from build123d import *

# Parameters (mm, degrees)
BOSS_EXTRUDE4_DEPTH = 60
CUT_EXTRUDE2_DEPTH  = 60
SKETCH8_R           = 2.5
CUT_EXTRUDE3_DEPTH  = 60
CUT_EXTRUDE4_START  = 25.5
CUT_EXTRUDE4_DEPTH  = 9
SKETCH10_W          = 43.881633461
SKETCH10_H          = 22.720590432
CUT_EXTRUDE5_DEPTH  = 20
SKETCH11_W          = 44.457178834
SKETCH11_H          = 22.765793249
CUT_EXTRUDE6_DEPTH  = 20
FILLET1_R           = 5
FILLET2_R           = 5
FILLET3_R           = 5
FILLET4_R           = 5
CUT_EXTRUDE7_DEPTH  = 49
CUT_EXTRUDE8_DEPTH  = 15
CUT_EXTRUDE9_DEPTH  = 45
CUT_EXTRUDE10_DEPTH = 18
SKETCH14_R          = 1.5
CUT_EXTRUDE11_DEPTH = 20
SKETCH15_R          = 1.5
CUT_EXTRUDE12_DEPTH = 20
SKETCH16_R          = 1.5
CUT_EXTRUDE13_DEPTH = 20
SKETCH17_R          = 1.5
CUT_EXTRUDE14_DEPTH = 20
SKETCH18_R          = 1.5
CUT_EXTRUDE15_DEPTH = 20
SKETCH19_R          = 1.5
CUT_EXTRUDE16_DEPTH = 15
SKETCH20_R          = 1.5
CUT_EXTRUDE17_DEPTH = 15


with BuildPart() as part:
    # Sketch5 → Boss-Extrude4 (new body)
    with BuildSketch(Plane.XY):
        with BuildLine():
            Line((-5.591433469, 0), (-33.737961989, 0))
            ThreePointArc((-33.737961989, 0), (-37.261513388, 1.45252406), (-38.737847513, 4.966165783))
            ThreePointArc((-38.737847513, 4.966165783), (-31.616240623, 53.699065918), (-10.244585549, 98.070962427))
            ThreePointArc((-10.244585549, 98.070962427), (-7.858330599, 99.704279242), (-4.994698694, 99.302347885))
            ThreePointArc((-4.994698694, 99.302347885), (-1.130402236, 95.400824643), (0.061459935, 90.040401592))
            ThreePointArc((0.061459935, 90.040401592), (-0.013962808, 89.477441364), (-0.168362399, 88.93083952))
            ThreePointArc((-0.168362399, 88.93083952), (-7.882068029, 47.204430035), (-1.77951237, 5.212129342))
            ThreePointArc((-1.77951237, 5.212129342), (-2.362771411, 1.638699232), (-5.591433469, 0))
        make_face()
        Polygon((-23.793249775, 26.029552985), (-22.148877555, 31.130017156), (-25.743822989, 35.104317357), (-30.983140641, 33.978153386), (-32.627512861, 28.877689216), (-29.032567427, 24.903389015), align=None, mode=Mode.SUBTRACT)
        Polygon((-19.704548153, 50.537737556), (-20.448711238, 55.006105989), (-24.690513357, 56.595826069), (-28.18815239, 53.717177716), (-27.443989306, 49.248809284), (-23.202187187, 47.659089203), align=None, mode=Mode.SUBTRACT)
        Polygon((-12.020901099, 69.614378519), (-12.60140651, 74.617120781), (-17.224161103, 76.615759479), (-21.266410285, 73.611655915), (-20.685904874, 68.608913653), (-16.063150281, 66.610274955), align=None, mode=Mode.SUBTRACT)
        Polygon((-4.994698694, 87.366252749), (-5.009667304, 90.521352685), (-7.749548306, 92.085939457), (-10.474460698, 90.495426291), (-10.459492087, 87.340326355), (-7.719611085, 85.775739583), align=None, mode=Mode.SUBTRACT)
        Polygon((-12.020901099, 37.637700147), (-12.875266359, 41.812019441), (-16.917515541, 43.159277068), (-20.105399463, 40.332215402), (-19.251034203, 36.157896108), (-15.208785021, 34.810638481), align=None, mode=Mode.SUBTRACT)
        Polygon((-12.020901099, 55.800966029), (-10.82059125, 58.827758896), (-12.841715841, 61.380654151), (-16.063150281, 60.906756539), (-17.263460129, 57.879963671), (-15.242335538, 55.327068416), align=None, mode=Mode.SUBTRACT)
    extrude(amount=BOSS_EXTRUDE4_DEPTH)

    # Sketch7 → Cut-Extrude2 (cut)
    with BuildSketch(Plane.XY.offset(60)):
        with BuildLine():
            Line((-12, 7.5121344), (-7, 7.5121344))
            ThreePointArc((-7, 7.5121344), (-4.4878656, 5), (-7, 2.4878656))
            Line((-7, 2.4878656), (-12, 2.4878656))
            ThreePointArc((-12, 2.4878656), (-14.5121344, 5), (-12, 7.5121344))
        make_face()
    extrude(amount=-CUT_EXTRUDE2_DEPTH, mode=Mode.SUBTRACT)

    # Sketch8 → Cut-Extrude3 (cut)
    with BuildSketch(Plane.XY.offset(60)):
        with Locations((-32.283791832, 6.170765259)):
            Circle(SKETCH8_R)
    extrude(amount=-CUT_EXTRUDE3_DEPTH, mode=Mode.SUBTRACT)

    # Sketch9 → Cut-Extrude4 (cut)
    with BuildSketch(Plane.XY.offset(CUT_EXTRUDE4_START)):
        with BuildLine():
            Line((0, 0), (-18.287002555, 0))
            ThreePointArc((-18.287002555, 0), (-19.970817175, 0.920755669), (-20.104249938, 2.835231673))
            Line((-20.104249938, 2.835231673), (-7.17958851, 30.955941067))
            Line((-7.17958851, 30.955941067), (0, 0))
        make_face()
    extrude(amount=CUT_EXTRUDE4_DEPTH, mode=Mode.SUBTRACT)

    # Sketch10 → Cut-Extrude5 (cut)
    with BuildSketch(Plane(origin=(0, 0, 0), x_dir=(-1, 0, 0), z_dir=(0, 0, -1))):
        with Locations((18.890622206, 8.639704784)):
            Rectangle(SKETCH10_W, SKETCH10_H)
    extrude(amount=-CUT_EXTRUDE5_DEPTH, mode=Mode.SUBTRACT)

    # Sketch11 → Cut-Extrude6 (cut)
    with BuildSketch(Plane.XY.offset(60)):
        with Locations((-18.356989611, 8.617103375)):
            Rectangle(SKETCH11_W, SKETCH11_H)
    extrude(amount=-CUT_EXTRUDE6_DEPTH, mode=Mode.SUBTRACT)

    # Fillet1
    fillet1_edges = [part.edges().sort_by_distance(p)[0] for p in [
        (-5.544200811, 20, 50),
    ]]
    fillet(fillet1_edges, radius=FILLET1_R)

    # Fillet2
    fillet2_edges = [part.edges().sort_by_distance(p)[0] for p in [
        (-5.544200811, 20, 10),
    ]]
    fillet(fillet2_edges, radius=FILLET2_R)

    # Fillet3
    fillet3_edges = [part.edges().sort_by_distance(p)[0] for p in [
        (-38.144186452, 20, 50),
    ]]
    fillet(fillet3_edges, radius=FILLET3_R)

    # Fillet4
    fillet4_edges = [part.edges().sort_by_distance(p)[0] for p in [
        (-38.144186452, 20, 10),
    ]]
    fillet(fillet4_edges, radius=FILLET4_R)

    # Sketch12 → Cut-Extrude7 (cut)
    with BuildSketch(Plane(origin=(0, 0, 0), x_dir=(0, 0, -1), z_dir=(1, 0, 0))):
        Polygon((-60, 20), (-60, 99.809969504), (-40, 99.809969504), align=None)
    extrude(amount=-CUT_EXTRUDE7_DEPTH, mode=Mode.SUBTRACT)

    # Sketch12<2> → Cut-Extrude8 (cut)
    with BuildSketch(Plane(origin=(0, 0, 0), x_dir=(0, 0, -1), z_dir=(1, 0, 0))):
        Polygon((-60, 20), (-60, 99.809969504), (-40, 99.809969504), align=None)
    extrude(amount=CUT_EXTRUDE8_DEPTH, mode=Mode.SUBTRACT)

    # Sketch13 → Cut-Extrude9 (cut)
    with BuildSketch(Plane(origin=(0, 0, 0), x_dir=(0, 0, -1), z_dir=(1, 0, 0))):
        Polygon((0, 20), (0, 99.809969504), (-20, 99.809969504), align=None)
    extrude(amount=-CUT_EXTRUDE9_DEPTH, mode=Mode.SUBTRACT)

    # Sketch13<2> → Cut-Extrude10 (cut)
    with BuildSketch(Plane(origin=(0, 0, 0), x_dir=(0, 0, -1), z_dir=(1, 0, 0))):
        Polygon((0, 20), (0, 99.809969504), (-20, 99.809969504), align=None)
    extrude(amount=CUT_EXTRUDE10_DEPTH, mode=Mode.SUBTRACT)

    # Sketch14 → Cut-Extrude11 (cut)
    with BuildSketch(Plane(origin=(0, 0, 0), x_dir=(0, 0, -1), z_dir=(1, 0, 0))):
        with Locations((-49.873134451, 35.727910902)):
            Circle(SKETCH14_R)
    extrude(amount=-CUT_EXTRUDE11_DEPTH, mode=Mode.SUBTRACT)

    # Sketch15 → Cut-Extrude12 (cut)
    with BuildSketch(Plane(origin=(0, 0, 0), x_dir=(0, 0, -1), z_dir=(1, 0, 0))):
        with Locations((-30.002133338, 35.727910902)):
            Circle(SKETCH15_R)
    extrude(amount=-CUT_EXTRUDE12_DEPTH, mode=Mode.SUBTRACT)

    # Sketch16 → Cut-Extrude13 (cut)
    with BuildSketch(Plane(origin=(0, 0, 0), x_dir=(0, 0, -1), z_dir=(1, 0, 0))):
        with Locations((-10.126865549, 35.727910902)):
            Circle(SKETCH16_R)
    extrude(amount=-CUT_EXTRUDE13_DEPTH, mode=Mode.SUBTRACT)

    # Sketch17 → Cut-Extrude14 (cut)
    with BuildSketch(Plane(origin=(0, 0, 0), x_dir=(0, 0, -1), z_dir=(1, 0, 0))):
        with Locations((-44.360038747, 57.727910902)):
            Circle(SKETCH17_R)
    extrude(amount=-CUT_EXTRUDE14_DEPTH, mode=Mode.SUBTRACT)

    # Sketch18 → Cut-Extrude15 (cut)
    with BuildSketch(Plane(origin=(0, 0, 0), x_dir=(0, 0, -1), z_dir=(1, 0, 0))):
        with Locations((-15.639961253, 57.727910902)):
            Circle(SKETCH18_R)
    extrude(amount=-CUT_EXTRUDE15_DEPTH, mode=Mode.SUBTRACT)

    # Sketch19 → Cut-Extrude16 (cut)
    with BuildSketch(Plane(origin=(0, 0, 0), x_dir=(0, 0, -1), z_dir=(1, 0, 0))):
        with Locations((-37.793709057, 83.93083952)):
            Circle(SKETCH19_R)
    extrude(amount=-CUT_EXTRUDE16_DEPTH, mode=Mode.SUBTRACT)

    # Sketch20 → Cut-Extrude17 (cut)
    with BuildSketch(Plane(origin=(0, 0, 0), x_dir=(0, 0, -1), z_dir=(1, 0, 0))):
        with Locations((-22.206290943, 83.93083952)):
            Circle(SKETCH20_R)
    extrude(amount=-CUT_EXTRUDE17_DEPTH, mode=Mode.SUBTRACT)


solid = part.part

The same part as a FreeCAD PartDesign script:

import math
import FreeCAD as App
import Part
import Sketcher

V = App.Vector


def edges_at(feature, points):
    """Names of the edges that pass closest to the given points."""
    edges = feature.Shape.Edges
    near = lambda p: min(range(len(edges)), key=lambda i: edges[i].distToShape(Part.Vertex(*p))[0])
    return sorted({f"Edge{near(p) + 1}" for p in points})

doc = App.newDocument("Part")
body = doc.addObject("PartDesign::Body", "Body")

# Sketch on XY plane
sketch1 = body.newObject("Sketcher::SketchObject", "Sketch")
sketch1.AttachmentSupport = (doc.getObject("XY_Plane"), [""])
sketch1.MapMode = "FlatFace"
sketch1.addGeometry([
    Part.LineSegment(V(-33.7, 0, 0), V(-5.6, 0, 0)),  # 0
    Part.ArcOfCircle(Part.Circle(V(-5.6, 4, 0), V(0, 0, 1), 4), math.radians(-90), math.radians(18)),  # 1
    Part.ArcOfCircle(Part.Circle(V(122.4, 44.7, 0), V(0, 0, 1), 130.3), math.radians(160), math.radians(198)),  # 2
    Part.ArcOfCircle(Part.Circle(V(-3.9, 90.3, 0), V(0, 0, 1), 4), math.radians(-19.84), math.radians(-3.56)),  # 3
    Part.ArcOfCircle(Part.Circle(V(-9.8, 90.7, 0), V(0, 0, 1), 9.9), math.radians(-4), math.radians(61)),  # 4
    Part.ArcOfCircle(Part.Circle(V(-6.9, 95.8, 0), V(0, 0, 1), 4), math.radians(61), math.radians(146)),  # 5
    Part.ArcOfCircle(Part.Circle(V(124, 6.1, 0), V(0, 0, 1), 162.8), math.radians(146), math.radians(180)),  # 6
    Part.ArcOfCircle(Part.Circle(V(-33.7, 5, 0), V(0, 0, 1), 5), math.radians(-180), math.radians(-90)),  # 7
    Part.LineSegment(V(-12, 37.6, 0), V(-15.2, 34.8, 0)),  # 8
    Part.LineSegment(V(-15.2, 34.8, 0), V(-19.3, 36.2, 0)),  # 9
    Part.LineSegment(V(-19.3, 36.2, 0), V(-20.1, 40.3, 0)),  # 10
    Part.LineSegment(V(-20.1, 40.3, 0), V(-16.9, 43.2, 0)),  # 11
    Part.LineSegment(V(-16.9, 43.2, 0), V(-12.9, 41.8, 0)),  # 12
    Part.LineSegment(V(-12.9, 41.8, 0), V(-12, 37.6, 0)),  # 13
    Part.LineSegment(V(-12, 55.8, 0), V(-15.2, 55.3, 0)),  # 14
    Part.LineSegment(V(-15.2, 55.3, 0), V(-17.3, 57.9, 0)),  # 15
    Part.LineSegment(V(-17.3, 57.9, 0), V(-16.1, 60.9, 0)),  # 16
    Part.LineSegment(V(-16.1, 60.9, 0), V(-12.8, 61.4, 0)),  # 17
    Part.LineSegment(V(-12.8, 61.4, 0), V(-10.8, 58.8, 0)),  # 18
    Part.LineSegment(V(-10.8, 58.8, 0), V(-12, 55.8, 0)),  # 19
    Part.LineSegment(V(-23.8, 26, 0), V(-29, 24.9, 0)),  # 20
    Part.LineSegment(V(-29, 24.9, 0), V(-32.6, 28.9, 0)),  # 21
    Part.LineSegment(V(-32.6, 28.9, 0), V(-31, 34, 0)),  # 22
    Part.LineSegment(V(-31, 34, 0), V(-25.7, 35.1, 0)),  # 23
    Part.LineSegment(V(-25.7, 35.1, 0), V(-22.1, 31.1, 0)),  # 24
    Part.LineSegment(V(-22.1, 31.1, 0), V(-23.8, 26, 0)),  # 25
    Part.LineSegment(V(-19.7, 50.5, 0), V(-23.2, 47.7, 0)),  # 26
    Part.LineSegment(V(-23.2, 47.7, 0), V(-27.4, 49.2, 0)),  # 27
    Part.LineSegment(V(-27.4, 49.2, 0), V(-28.2, 53.7, 0)),  # 28
    Part.LineSegment(V(-28.2, 53.7, 0), V(-24.7, 56.6, 0)),  # 29
    Part.LineSegment(V(-24.7, 56.6, 0), V(-20.4, 55, 0)),  # 30
    Part.LineSegment(V(-20.4, 55, 0), V(-19.7, 50.5, 0)),  # 31
    Part.LineSegment(V(-12, 69.6, 0), V(-16.1, 66.6, 0)),  # 32
    Part.LineSegment(V(-16.1, 66.6, 0), V(-20.7, 68.6, 0)),  # 33
    Part.LineSegment(V(-20.7, 68.6, 0), V(-21.3, 73.6, 0)),  # 34
    Part.LineSegment(V(-21.3, 73.6, 0), V(-17.2, 76.6, 0)),  # 35
    Part.LineSegment(V(-17.2, 76.6, 0), V(-12.6, 74.6, 0)),  # 36
    Part.LineSegment(V(-12.6, 74.6, 0), V(-12, 69.6, 0)),  # 37
    Part.LineSegment(V(-5, 87.4, 0), V(-7.7, 85.8, 0)),  # 38
    Part.LineSegment(V(-7.7, 85.8, 0), V(-10.5, 87.3, 0)),  # 39
    Part.LineSegment(V(-10.5, 87.3, 0), V(-10.5, 90.5, 0)),  # 40
    Part.LineSegment(V(-10.5, 90.5, 0), V(-7.7, 92.1, 0)),  # 41
    Part.LineSegment(V(-7.7, 92.1, 0), V(-5, 90.5, 0)),  # 42
    Part.LineSegment(V(-5, 90.5, 0), V(-5, 87.4, 0)),  # 43
], False)
sketch1.addConstraint([
    Sketcher.Constraint("Tangent", 0, 2, 1, 1),
    Sketcher.Constraint("Tangent", 1, 2, 2, 2),
    Sketcher.Constraint("Tangent", 2, 1, 3, 1),
    Sketcher.Constraint("Tangent", 3, 2, 4, 1),
    Sketcher.Constraint("Tangent", 4, 2, 5, 1),
    Sketcher.Constraint("Tangent", 5, 2, 6, 1),
    Sketcher.Constraint("Tangent", 6, 2, 7, 1),
    Sketcher.Constraint("Tangent", 7, 2, 0, 1),
    Sketcher.Constraint("Coincident", 8, 2, 9, 1),
    Sketcher.Constraint("Coincident", 9, 2, 10, 1),
    Sketcher.Constraint("Coincident", 10, 2, 11, 1),
    Sketcher.Constraint("Coincident", 11, 2, 12, 1),
    Sketcher.Constraint("Coincident", 12, 2, 13, 1),
    Sketcher.Constraint("Coincident", 13, 2, 8, 1),
    Sketcher.Constraint("Coincident", 14, 2, 15, 1),
    Sketcher.Constraint("Coincident", 15, 2, 16, 1),
    Sketcher.Constraint("Coincident", 16, 2, 17, 1),
    Sketcher.Constraint("Coincident", 17, 2, 18, 1),
    Sketcher.Constraint("Coincident", 18, 2, 19, 1),
    Sketcher.Constraint("Coincident", 19, 2, 14, 1),
    Sketcher.Constraint("Coincident", 20, 2, 21, 1),
    Sketcher.Constraint("Coincident", 21, 2, 22, 1),
    Sketcher.Constraint("Coincident", 22, 2, 23, 1),
    Sketcher.Constraint("Coincident", 23, 2, 24, 1),
    Sketcher.Constraint("Coincident", 24, 2, 25, 1),
    Sketcher.Constraint("Coincident", 25, 2, 20, 1),
    Sketcher.Constraint("Coincident", 26, 2, 27, 1),
    Sketcher.Constraint("Coincident", 27, 2, 28, 1),
    Sketcher.Constraint("Coincident", 28, 2, 29, 1),
    Sketcher.Constraint("Coincident", 29, 2, 30, 1),
    Sketcher.Constraint("Coincident", 30, 2, 31, 1),
    Sketcher.Constraint("Coincident", 31, 2, 26, 1),
    Sketcher.Constraint("Coincident", 32, 2, 33, 1),
    Sketcher.Constraint("Coincident", 33, 2, 34, 1),
    Sketcher.Constraint("Coincident", 34, 2, 35, 1),
    Sketcher.Constraint("Coincident", 35, 2, 36, 1),
    Sketcher.Constraint("Coincident", 36, 2, 37, 1),
    Sketcher.Constraint("Coincident", 37, 2, 32, 1),
    Sketcher.Constraint("Coincident", 38, 2, 39, 1),
    Sketcher.Constraint("Coincident", 39, 2, 40, 1),
    Sketcher.Constraint("Coincident", 40, 2, 41, 1),
    Sketcher.Constraint("Coincident", 41, 2, 42, 1),
    Sketcher.Constraint("Coincident", 42, 2, 43, 1),
    Sketcher.Constraint("Coincident", 43, 2, 38, 1),
    Sketcher.Constraint("Horizontal", 0),
    Sketcher.Constraint("Equal", 1, 3),
    Sketcher.Constraint("Equal", 3, 5),
    Sketcher.Constraint("PointOnObject", 0, 2, -1),
    Sketcher.Constraint("Parallel", 8, 11),
    Sketcher.Constraint("Parallel", 9, 12),
    Sketcher.Constraint("Parallel", 10, 13),
    Sketcher.Constraint("Parallel", 14, 17),
    Sketcher.Constraint("Parallel", 15, 18),
    Sketcher.Constraint("Parallel", 16, 19),
    Sketcher.Constraint("Parallel", 20, 23),
    Sketcher.Constraint("Parallel", 21, 24),
    Sketcher.Constraint("Parallel", 22, 25),
    Sketcher.Constraint("Parallel", 26, 29),
    Sketcher.Constraint("Parallel", 27, 30),
    Sketcher.Constraint("Parallel", 28, 31),
    Sketcher.Constraint("Parallel", 32, 35),
    Sketcher.Constraint("Parallel", 33, 36),
    Sketcher.Constraint("Parallel", 34, 37),
    Sketcher.Constraint("Parallel", 38, 41),
    Sketcher.Constraint("Parallel", 39, 42),
    Sketcher.Constraint("Parallel", 40, 43),
    Sketcher.Constraint("Vertical", 13, 2, 19, 2),
    Sketcher.Constraint("Vertical", 16, 2, 32, 2),
    Sketcher.Constraint("Vertical", 19, 2, 37, 2),
    Sketcher.Constraint("Vertical", 4, 2, 43, 2),
    Sketcher.Constraint("Equal", 8, 9),
    Sketcher.Constraint("Equal", 9, 10),
    Sketcher.Constraint("Equal", 10, 11),
    Sketcher.Constraint("Equal", 14, 15),
    Sketcher.Constraint("Equal", 15, 16),
    Sketcher.Constraint("Equal", 16, 17),
    Sketcher.Constraint("Equal", 20, 21),
    Sketcher.Constraint("Equal", 21, 22),
    Sketcher.Constraint("Equal", 22, 23),
    Sketcher.Constraint("Equal", 26, 27),
    Sketcher.Constraint("Equal", 27, 28),
    Sketcher.Constraint("Equal", 28, 29),
    Sketcher.Constraint("Equal", 32, 33),
    Sketcher.Constraint("Equal", 33, 34),
    Sketcher.Constraint("Equal", 34, 35),
    Sketcher.Constraint("Equal", 38, 39),
    Sketcher.Constraint("Equal", 39, 40),
    Sketcher.Constraint("Equal", 40, 41),
    Sketcher.Constraint("Radius", 1, 4.0),
    Sketcher.Constraint("Radius", 7, 5.0),
    Sketcher.Constraint("Radius", 2, 130.300167),
    Sketcher.Constraint("Radius", 4, 9.903936),
    Sketcher.Constraint("Radius", 6, 162.766334),
    Sketcher.Constraint("DistanceY", 17, 2, 34, 2, 12.231002),
    Sketcher.Constraint("DistanceX", 0, 1, 0, 2, 28.146529),
    Sketcher.Constraint("DistanceY", -1, 1, 3, 2, 90.040402),
    Sketcher.Constraint("DistanceX", 4, 2, -1, 1, 4.994699),
    Sketcher.Constraint("DistanceX", 10, 2, -1, 1, 20.105399),
    Sketcher.Constraint("DistanceX", 13, 2, -1, 1, 12.020901),
    Sketcher.Constraint("DistanceY", -1, 1, 13, 2, 37.6377),
    Sketcher.Constraint("DistanceX", 3, 3, 2, 3, 126.324801),
    Sketcher.Constraint("DistanceX", 9, 2, 1, 3, 13.659601),
    Sketcher.Constraint("DistanceX", 9, 2, 14, 2, 4.008699),
    Sketcher.Constraint("DistanceX", 11, 2, 17, 2, 4.0758),
    Sketcher.Constraint("DistanceY", 20, 2, 21, 2, 3.9743),
    Sketcher.Constraint("DistanceY", 23, 2, 10, 2, 5.227898),
    Sketcher.Constraint("DistanceY", 25, 2, 22, 2, 7.9486),
    Sketcher.Constraint("DistanceY", 16, 2, 34, 2, 12.704899),
    Sketcher.Constraint("DistanceX", 33, 2, 36, 2, 8.084498),
    Sketcher.Constraint("DistanceY", 38, 2, 2, 1, 3.1551),
    Sketcher.Constraint("DistanceY", 39, 2, 40, 2, 3.1551),
    Sketcher.Constraint("Distance", 26, 4.529911),
    Sketcher.Constraint("Distance", 32, 5.03631),
    Sketcher.Constraint("DistanceX", 4, 3, -1, 1, 9.823371),
    Sketcher.Constraint("DistanceY", -1, 1, 5, 3, 95.80997),
    Sketcher.Constraint("DistanceY", -1, 1, 8, 2, 34.810638),
    Sketcher.Constraint("DistanceY", -1, 1, 12, 2, 41.812019),
    Sketcher.Constraint("DistanceY", -1, 1, 14, 2, 55.327068),
    Sketcher.Constraint("DistanceX", 15, 2, -1, 1, 17.26346),
    Sketcher.Constraint("DistanceY", -1, 1, 20, 2, 24.903389),
    Sketcher.Constraint("DistanceX", 22, 2, -1, 1, 30.983141),
    Sketcher.Constraint("DistanceX", 25, 2, -1, 1, 23.79325),
    Sketcher.Constraint("DistanceY", -1, 1, 26, 2, 47.659089),
    Sketcher.Constraint("DistanceX", 27, 2, -1, 1, 27.443989),
    Sketcher.Constraint("DistanceY", -1, 1, 27, 2, 49.248809),
    Sketcher.Constraint("DistanceX", 30, 2, -1, 1, 20.448711),
    Sketcher.Constraint("DistanceX", 31, 2, -1, 1, 19.704548),
    Sketcher.Constraint("DistanceX", 34, 2, -1, 1, 21.26641),
    Sketcher.Constraint("DistanceX", 38, 2, -1, 1, 7.719611),
    Sketcher.Constraint("DistanceX", 40, 2, -1, 1, 10.474461),
    Sketcher.Constraint("DistanceY", -1, 1, 41, 2, 92.085939),
])
pad1 = body.newObject("PartDesign::Pad", "Pad")
pad1.Profile = sketch1
pad1.Length = 60

# Sketch on XY plane
sketch2 = body.newObject("Sketcher::SketchObject", "Sketch001")
sketch2.AttachmentSupport = (doc.getObject("XY_Plane"), [""])
sketch2.MapMode = "FlatFace"
sketch2.AttachmentOffset = App.Placement(V(0, 0, 60), App.Rotation())
sketch2.addGeometry([
    Part.LineSegment(V(-7, 7.5, 0), V(-12, 7.5, 0)),
    Part.ArcOfCircle(Part.Circle(V(-12, 5, 0), V(0, 0, 1), 2.5), math.radians(90), math.radians(270)),
    Part.LineSegment(V(-12, 2.5, 0), V(-7, 2.5, 0)),
    Part.ArcOfCircle(Part.Circle(V(-7, 5, 0), V(0, 0, 1), 2.5), math.radians(-90), math.radians(90)),
], False)
sketch2.addConstraint([
    Sketcher.Constraint("Tangent", 0, 2, 1, 1),
    Sketcher.Constraint("Tangent", 1, 2, 2, 1),
    Sketcher.Constraint("Tangent", 2, 2, 3, 1),
    Sketcher.Constraint("Tangent", 3, 2, 0, 1),
    Sketcher.Constraint("Horizontal", 0),
    Sketcher.Constraint("Horizontal", 2),
    Sketcher.Constraint("DistanceX", 0, 2, 0, 1, 5.0),
    Sketcher.Constraint("DistanceX", 1, 3, -1, 1, 12.0),
    Sketcher.Constraint("DistanceY", -1, 1, 1, 3, 5.0),
    Sketcher.Constraint("Radius", 1, 2.512134),
])
pocket1 = body.newObject("PartDesign::Pocket", "Pocket")
pocket1.Profile = sketch2
pocket1.Length = 60

# Sketch on XY plane
sketch3 = body.newObject("Sketcher::SketchObject", "Sketch002")
sketch3.AttachmentSupport = (doc.getObject("XY_Plane"), [""])
sketch3.MapMode = "FlatFace"
sketch3.AttachmentOffset = App.Placement(V(0, 0, 60), App.Rotation())
sketch3.addGeometry(Part.Circle(V(-32.3, 6.2, 0), V(0, 0, 1), 2.5), False)
sketch3.addConstraint([
    Sketcher.Constraint("Diameter", 0, 5.0),
    Sketcher.Constraint("DistanceX", 0, 3, -1, 1, 32.283792),
    Sketcher.Constraint("DistanceY", -1, 1, 0, 3, 6.170765),
])
pocket2 = body.newObject("PartDesign::Pocket", "Pocket001")
pocket2.Profile = sketch3
pocket2.Length = 60

# Sketch on XY plane
sketch4 = body.newObject("Sketcher::SketchObject", "Sketch003")
sketch4.AttachmentSupport = (doc.getObject("XY_Plane"), [""])
sketch4.MapMode = "FlatFace"
sketch4.AttachmentOffset = App.Placement(V(0, 0, 25.5), App.Rotation())
sketch4.addGeometry([
    Part.LineSegment(V(-18.3, 0, 0), V(0, 0, 0)),
    Part.LineSegment(V(0, 0, 0), V(-7.2, 31, 0)),
    Part.LineSegment(V(-7.2, 31, 0), V(-20.1, 2.8, 0)),
    Part.ArcOfCircle(Part.Circle(V(-18.3, 2, 0), V(0, 0, 1), 2), math.radians(155), math.radians(270)),
], False)
sketch4.addConstraint([
    Sketcher.Constraint("Coincident", 0, 2, 1, 1),
    Sketcher.Constraint("Coincident", 1, 2, 2, 1),
    Sketcher.Constraint("Tangent", 2, 2, 3, 1),
    Sketcher.Constraint("Tangent", 3, 2, 0, 1),
    Sketcher.Constraint("Horizontal", 0),
    Sketcher.Constraint("Coincident", 0, 2, -1, 1),
    Sketcher.Constraint("Radius", 3, 2.0),
    Sketcher.Constraint("DistanceX", 0, 1, 0, 2, 18.287003),
    Sketcher.Constraint("DistanceX", 1, 2, -1, 1, 7.179589),
    Sketcher.Constraint("DistanceY", -1, 1, 1, 2, 30.955941),
])
pocket3 = body.newObject("PartDesign::Pocket", "Pocket002")
pocket3.Profile = sketch4
pocket3.Length = 9
pocket3.Reversed = True

# Sketch on XY plane
sketch5 = body.newObject("Sketcher::SketchObject", "Sketch004")
sketch5.AttachmentSupport = (doc.getObject("XY_Plane"), [""])
sketch5.MapMode = "FlatFace"
sketch5.addGeometry([
    Part.LineSegment(V(3, 20, 0), V(3, -3, 0)),
    Part.LineSegment(V(3, -3, 0), V(-41, -3, 0)),
    Part.LineSegment(V(-41, -3, 0), V(-41, 20, 0)),
    Part.LineSegment(V(-41, 20, 0), V(3, 20, 0)),
], False)
sketch5.addConstraint([
    Sketcher.Constraint("Coincident", 0, 2, 1, 1),
    Sketcher.Constraint("Coincident", 1, 2, 2, 1),
    Sketcher.Constraint("Coincident", 2, 2, 3, 1),
    Sketcher.Constraint("Coincident", 3, 2, 0, 1),
    Sketcher.Constraint("Vertical", 0),
    Sketcher.Constraint("Horizontal", 1),
    Sketcher.Constraint("Vertical", 2),
    Sketcher.Constraint("Horizontal", 3),
    Sketcher.Constraint("DistanceY", -1, 1, 2, 2, 20.0),
    Sketcher.Constraint("DistanceY", 0, 2, 0, 1, 22.72059),
    Sketcher.Constraint("DistanceX", 1, 2, 1, 1, 43.881633),
    Sketcher.Constraint("DistanceX", 1, 2, -1, 1, 40.831439),
])
pocket4 = body.newObject("PartDesign::Pocket", "Pocket003")
pocket4.Profile = sketch5
pocket4.Length = 20
pocket4.Reversed = True

# Sketch on XY plane
sketch6 = body.newObject("Sketcher::SketchObject", "Sketch005")
sketch6.AttachmentSupport = (doc.getObject("XY_Plane"), [""])
sketch6.MapMode = "FlatFace"
sketch6.AttachmentOffset = App.Placement(V(0, 0, 60), App.Rotation())
sketch6.addGeometry([
    Part.LineSegment(V(-41, 20, 0), V(-41, -3, 0)),
    Part.LineSegment(V(-41, -3, 0), V(4, -3, 0)),
    Part.LineSegment(V(4, -3, 0), V(4, 20, 0)),
    Part.LineSegment(V(4, 20, 0), V(-41, 20, 0)),
], False)
sketch6.addConstraint([
    Sketcher.Constraint("Coincident", 0, 2, 1, 1),
    Sketcher.Constraint("Coincident", 1, 2, 2, 1),
    Sketcher.Constraint("Coincident", 2, 2, 3, 1),
    Sketcher.Constraint("Coincident", 3, 2, 0, 1),
    Sketcher.Constraint("Vertical", 0),
    Sketcher.Constraint("Horizontal", 1),
    Sketcher.Constraint("Vertical", 2),
    Sketcher.Constraint("Horizontal", 3),
    Sketcher.Constraint("DistanceY", -1, 1, 2, 2, 20.0),
    Sketcher.Constraint("DistanceX", 1, 1, 1, 2, 44.457179),
    Sketcher.Constraint("DistanceX", -1, 1, 1, 2, 3.8716),
    Sketcher.Constraint("DistanceY", 0, 2, 0, 1, 22.765793),
])
pocket5 = body.newObject("PartDesign::Pocket", "Pocket004")
pocket5.Profile = sketch6
pocket5.Length = 20
doc.recompute()

fillet = body.newObject("PartDesign::Fillet", "Fillet")
fillet.Base = (pocket5, edges_at(pocket5, [(-5.544, 20, 50)]))
fillet.Radius = 5
doc.recompute()

fillet2 = body.newObject("PartDesign::Fillet", "Fillet001")
fillet2.Base = (fillet, edges_at(fillet, [(-5.544, 20, 10)]))
fillet2.Radius = 5
doc.recompute()

fillet3 = body.newObject("PartDesign::Fillet", "Fillet002")
fillet3.Base = (fillet2, edges_at(fillet2, [(-38.144, 20, 50)]))
fillet3.Radius = 5
doc.recompute()

fillet4 = body.newObject("PartDesign::Fillet", "Fillet003")
fillet4.Base = (fillet3, edges_at(fillet3, [(-38.144, 20, 10)]))
fillet4.Radius = 5

# Sketch on YZ plane
sketch7 = body.newObject("Sketcher::SketchObject", "Sketch006")
sketch7.AttachmentSupport = (doc.getObject("YZ_Plane"), [""])
sketch7.MapMode = "FlatFace"
sketch7.addGeometry([
    Part.LineSegment(V(100, 60, 0), V(20, 60, 0)),
    Part.LineSegment(V(20, 60, 0), V(100, 40, 0)),
    Part.LineSegment(V(100, 40, 0), V(100, 60, 0)),
], False)
sketch7.addConstraint([
    Sketcher.Constraint("Coincident", 0, 2, 1, 1),
    Sketcher.Constraint("Coincident", 1, 2, 2, 1),
    Sketcher.Constraint("Coincident", 2, 2, 0, 1),
    Sketcher.Constraint("Horizontal", 0),
    Sketcher.Constraint("Vertical", 2),
    Sketcher.Constraint("DistanceY", 2, 1, 2, 2, 20.0),
    Sketcher.Constraint("DistanceX", -1, 1, 0, 2, 20.0),
    Sketcher.Constraint("DistanceY", -1, 1, 0, 2, 60.0),
    Sketcher.Constraint("DistanceX", 0, 2, 0, 1, 79.80997),
])
pocket6 = body.newObject("PartDesign::Pocket", "Pocket005")
pocket6.Profile = sketch7
pocket6.Length = 49

# Sketch on YZ plane
sketch8 = body.newObject("Sketcher::SketchObject", "Sketch007")
sketch8.AttachmentSupport = (doc.getObject("YZ_Plane"), [""])
sketch8.MapMode = "FlatFace"
sketch8.addGeometry([
    Part.LineSegment(V(100, 60, 0), V(20, 60, 0)),
    Part.LineSegment(V(20, 60, 0), V(100, 40, 0)),
    Part.LineSegment(V(100, 40, 0), V(100, 60, 0)),
], False)
sketch8.addConstraint([
    Sketcher.Constraint("Coincident", 0, 2, 1, 1),
    Sketcher.Constraint("Coincident", 1, 2, 2, 1),
    Sketcher.Constraint("Coincident", 2, 2, 0, 1),
    Sketcher.Constraint("Horizontal", 0),
    Sketcher.Constraint("Vertical", 2),
    Sketcher.Constraint("DistanceY", 2, 1, 2, 2, 20.0),
    Sketcher.Constraint("DistanceX", -1, 1, 0, 2, 20.0),
    Sketcher.Constraint("DistanceY", -1, 1, 0, 2, 60.0),
    Sketcher.Constraint("DistanceX", 0, 2, 0, 1, 79.80997),
])
pocket7 = body.newObject("PartDesign::Pocket", "Pocket006")
pocket7.Profile = sketch8
pocket7.Length = 15
pocket7.Reversed = True

# Sketch on YZ plane
sketch9 = body.newObject("Sketcher::SketchObject", "Sketch008")
sketch9.AttachmentSupport = (doc.getObject("YZ_Plane"), [""])
sketch9.MapMode = "FlatFace"
sketch9.addGeometry([
    Part.LineSegment(V(20, 0, 0), V(100, 0, 0)),
    Part.LineSegment(V(100, 0, 0), V(100, 20, 0)),
    Part.LineSegment(V(100, 20, 0), V(20, 0, 0)),
], False)
sketch9.addConstraint([
    Sketcher.Constraint("Coincident", 0, 2, 1, 1),
    Sketcher.Constraint("Coincident", 1, 2, 2, 1),
    Sketcher.Constraint("Coincident", 2, 2, 0, 1),
    Sketcher.Constraint("Horizontal", 0),
    Sketcher.Constraint("Vertical", 1),
    Sketcher.Constraint("PointOnObject", 0, 2, -1),
    Sketcher.Constraint("DistanceY", 1, 1, 1, 2, 20.0),
    Sketcher.Constraint("DistanceX", -1, 1, 2, 2, 20.0),
    Sketcher.Constraint("DistanceX", 0, 1, 0, 2, 79.80997),
])
pocket8 = body.newObject("PartDesign::Pocket", "Pocket007")
pocket8.Profile = sketch9
pocket8.Length = 45

# Sketch on YZ plane
sketch10 = body.newObject("Sketcher::SketchObject", "Sketch009")
sketch10.AttachmentSupport = (doc.getObject("YZ_Plane"), [""])
sketch10.MapMode = "FlatFace"
sketch10.addGeometry([
    Part.LineSegment(V(20, 0, 0), V(100, 0, 0)),
    Part.LineSegment(V(100, 0, 0), V(100, 20, 0)),
    Part.LineSegment(V(100, 20, 0), V(20, 0, 0)),
], False)
sketch10.addConstraint([
    Sketcher.Constraint("Coincident", 0, 2, 1, 1),
    Sketcher.Constraint("Coincident", 1, 2, 2, 1),
    Sketcher.Constraint("Coincident", 2, 2, 0, 1),
    Sketcher.Constraint("Horizontal", 0),
    Sketcher.Constraint("Vertical", 1),
    Sketcher.Constraint("PointOnObject", 0, 2, -1),
    Sketcher.Constraint("DistanceY", 1, 1, 1, 2, 20.0),
    Sketcher.Constraint("DistanceX", -1, 1, 2, 2, 20.0),
    Sketcher.Constraint("DistanceX", 0, 1, 0, 2, 79.80997),
])
pocket9 = body.newObject("PartDesign::Pocket", "Pocket008")
pocket9.Profile = sketch10
pocket9.Length = 18
pocket9.Reversed = True

# Sketch on YZ plane
sketch11 = body.newObject("Sketcher::SketchObject", "Sketch010")
sketch11.AttachmentSupport = (doc.getObject("YZ_Plane"), [""])
sketch11.MapMode = "FlatFace"
sketch11.addGeometry(Part.Circle(V(35.7, 49.9, 0), V(0, 0, 1), 1.5), False)
sketch11.addConstraint([
    Sketcher.Constraint("Diameter", 0, 3.0),
    Sketcher.Constraint("DistanceX", -1, 1, 0, 3, 35.727911),
    Sketcher.Constraint("DistanceY", -1, 1, 0, 3, 49.873134),
])
pocket10 = body.newObject("PartDesign::Pocket", "Pocket009")
pocket10.Profile = sketch11
pocket10.Length = 20

# Sketch on YZ plane
sketch12 = body.newObject("Sketcher::SketchObject", "Sketch011")
sketch12.AttachmentSupport = (doc.getObject("YZ_Plane"), [""])
sketch12.MapMode = "FlatFace"
sketch12.addGeometry(Part.Circle(V(35.7, 30, 0), V(0, 0, 1), 1.5), False)
sketch12.addConstraint([
    Sketcher.Constraint("Diameter", 0, 3.0),
    Sketcher.Constraint("DistanceX", -1, 1, 0, 3, 35.727911),
    Sketcher.Constraint("DistanceY", -1, 1, 0, 3, 30.002133),
])
pocket11 = body.newObject("PartDesign::Pocket", "Pocket010")
pocket11.Profile = sketch12
pocket11.Length = 20

# Sketch on YZ plane
sketch13 = body.newObject("Sketcher::SketchObject", "Sketch012")
sketch13.AttachmentSupport = (doc.getObject("YZ_Plane"), [""])
sketch13.MapMode = "FlatFace"
sketch13.addGeometry(Part.Circle(V(35.7, 10.1, 0), V(0, 0, 1), 1.5), False)
sketch13.addConstraint([
    Sketcher.Constraint("Diameter", 0, 3.0),
    Sketcher.Constraint("DistanceX", -1, 1, 0, 3, 35.727911),
    Sketcher.Constraint("DistanceY", -1, 1, 0, 3, 10.126866),
])
pocket12 = body.newObject("PartDesign::Pocket", "Pocket011")
pocket12.Profile = sketch13
pocket12.Length = 20

# Sketch on YZ plane
sketch14 = body.newObject("Sketcher::SketchObject", "Sketch013")
sketch14.AttachmentSupport = (doc.getObject("YZ_Plane"), [""])
sketch14.MapMode = "FlatFace"
sketch14.addGeometry(Part.Circle(V(57.7, 44.4, 0), V(0, 0, 1), 1.5), False)
sketch14.addConstraint([
    Sketcher.Constraint("Diameter", 0, 3.0),
    Sketcher.Constraint("DistanceX", -1, 1, 0, 3, 57.727911),
    Sketcher.Constraint("DistanceY", -1, 1, 0, 3, 44.360039),
])
pocket13 = body.newObject("PartDesign::Pocket", "Pocket012")
pocket13.Profile = sketch14
pocket13.Length = 20

# Sketch on YZ plane
sketch15 = body.newObject("Sketcher::SketchObject", "Sketch014")
sketch15.AttachmentSupport = (doc.getObject("YZ_Plane"), [""])
sketch15.MapMode = "FlatFace"
sketch15.addGeometry(Part.Circle(V(57.7, 15.6, 0), V(0, 0, 1), 1.5), False)
sketch15.addConstraint([
    Sketcher.Constraint("Diameter", 0, 3.0),
    Sketcher.Constraint("DistanceX", -1, 1, 0, 3, 57.727911),
    Sketcher.Constraint("DistanceY", -1, 1, 0, 3, 15.639961),
])
pocket14 = body.newObject("PartDesign::Pocket", "Pocket013")
pocket14.Profile = sketch15
pocket14.Length = 20

# Sketch on YZ plane
sketch16 = body.newObject("Sketcher::SketchObject", "Sketch015")
sketch16.AttachmentSupport = (doc.getObject("YZ_Plane"), [""])
sketch16.MapMode = "FlatFace"
sketch16.addGeometry(Part.Circle(V(83.9, 37.8, 0), V(0, 0, 1), 1.5), False)
sketch16.addConstraint([
    Sketcher.Constraint("Diameter", 0, 3.0),
    Sketcher.Constraint("DistanceX", -1, 1, 0, 3, 83.93084),
    Sketcher.Constraint("DistanceY", -1, 1, 0, 3, 37.793709),
])
pocket15 = body.newObject("PartDesign::Pocket", "Pocket014")
pocket15.Profile = sketch16
pocket15.Length = 15

# Sketch on YZ plane
sketch17 = body.newObject("Sketcher::SketchObject", "Sketch016")
sketch17.AttachmentSupport = (doc.getObject("YZ_Plane"), [""])
sketch17.MapMode = "FlatFace"
sketch17.addGeometry(Part.Circle(V(83.9, 22.2, 0), V(0, 0, 1), 1.5), False)
sketch17.addConstraint([
    Sketcher.Constraint("Diameter", 0, 3.0),
    Sketcher.Constraint("DistanceX", -1, 1, 0, 3, 83.93084),
    Sketcher.Constraint("DistanceY", -1, 1, 0, 3, 22.206291),
])
pocket16 = body.newObject("PartDesign::Pocket", "Pocket015")
pocket16.Profile = sketch17
pocket16.Length = 15

doc.recompute()
